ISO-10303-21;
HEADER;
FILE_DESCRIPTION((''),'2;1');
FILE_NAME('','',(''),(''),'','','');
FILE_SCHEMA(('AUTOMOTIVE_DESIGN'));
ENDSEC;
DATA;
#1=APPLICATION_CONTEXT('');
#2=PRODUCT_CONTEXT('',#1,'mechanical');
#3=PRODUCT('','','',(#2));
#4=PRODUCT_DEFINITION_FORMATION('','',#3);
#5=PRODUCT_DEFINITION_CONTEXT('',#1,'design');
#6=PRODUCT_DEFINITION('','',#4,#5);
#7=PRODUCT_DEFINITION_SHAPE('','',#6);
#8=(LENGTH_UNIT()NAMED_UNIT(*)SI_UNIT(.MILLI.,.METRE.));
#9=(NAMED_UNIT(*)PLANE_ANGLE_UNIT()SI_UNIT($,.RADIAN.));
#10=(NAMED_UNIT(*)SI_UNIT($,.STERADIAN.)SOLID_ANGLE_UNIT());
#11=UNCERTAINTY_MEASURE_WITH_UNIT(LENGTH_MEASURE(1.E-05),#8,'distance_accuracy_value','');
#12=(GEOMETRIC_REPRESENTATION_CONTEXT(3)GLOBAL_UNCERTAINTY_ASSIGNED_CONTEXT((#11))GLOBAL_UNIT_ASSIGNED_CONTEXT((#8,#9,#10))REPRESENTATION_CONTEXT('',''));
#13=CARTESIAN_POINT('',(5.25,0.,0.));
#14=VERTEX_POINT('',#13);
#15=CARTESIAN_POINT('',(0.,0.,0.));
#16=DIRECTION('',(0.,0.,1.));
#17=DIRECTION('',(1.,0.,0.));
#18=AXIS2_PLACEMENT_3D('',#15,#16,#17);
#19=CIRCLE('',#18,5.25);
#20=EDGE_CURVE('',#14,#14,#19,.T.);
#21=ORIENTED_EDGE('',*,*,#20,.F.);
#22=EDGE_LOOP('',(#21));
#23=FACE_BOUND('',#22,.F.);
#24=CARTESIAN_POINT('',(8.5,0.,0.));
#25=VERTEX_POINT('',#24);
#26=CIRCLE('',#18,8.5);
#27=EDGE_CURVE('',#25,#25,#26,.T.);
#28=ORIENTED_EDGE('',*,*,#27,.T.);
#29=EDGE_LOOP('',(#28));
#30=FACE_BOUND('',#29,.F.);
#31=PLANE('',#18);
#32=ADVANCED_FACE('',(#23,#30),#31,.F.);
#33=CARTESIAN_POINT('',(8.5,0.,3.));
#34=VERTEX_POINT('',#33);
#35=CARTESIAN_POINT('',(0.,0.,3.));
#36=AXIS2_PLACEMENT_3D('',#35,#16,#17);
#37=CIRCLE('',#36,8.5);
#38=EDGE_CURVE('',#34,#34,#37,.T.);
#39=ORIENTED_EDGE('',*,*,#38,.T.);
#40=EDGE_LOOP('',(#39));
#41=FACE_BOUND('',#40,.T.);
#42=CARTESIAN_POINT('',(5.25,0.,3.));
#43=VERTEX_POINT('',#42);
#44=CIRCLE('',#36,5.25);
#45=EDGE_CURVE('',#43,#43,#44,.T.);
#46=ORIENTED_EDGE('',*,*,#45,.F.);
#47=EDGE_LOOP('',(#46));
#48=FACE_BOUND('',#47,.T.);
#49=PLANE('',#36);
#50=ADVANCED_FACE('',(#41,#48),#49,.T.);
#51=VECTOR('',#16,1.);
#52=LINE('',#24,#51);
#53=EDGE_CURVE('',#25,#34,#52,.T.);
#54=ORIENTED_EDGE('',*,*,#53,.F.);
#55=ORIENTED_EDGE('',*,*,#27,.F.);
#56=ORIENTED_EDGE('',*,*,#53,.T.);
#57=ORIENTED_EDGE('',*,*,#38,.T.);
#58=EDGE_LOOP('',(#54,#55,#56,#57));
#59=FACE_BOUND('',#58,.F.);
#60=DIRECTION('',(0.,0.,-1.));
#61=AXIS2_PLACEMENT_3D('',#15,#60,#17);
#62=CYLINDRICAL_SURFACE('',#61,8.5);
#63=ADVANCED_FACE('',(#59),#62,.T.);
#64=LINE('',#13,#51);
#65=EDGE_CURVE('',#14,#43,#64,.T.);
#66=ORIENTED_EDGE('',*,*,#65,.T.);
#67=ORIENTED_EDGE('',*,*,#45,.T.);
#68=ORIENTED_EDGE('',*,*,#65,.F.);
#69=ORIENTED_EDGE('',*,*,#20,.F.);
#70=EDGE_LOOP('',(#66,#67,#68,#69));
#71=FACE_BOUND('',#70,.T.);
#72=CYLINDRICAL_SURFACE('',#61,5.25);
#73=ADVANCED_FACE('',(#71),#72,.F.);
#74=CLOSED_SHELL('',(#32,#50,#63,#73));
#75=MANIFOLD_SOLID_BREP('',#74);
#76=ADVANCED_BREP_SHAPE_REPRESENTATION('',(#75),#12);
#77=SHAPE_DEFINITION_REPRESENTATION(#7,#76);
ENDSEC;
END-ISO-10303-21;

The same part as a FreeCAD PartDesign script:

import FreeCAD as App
import Part
import Sketcher
from FreeCAD import Vector

doc = App.newDocument("Part")
body = doc.addObject("PartDesign::Body", "Body")

# Sketch on XY plane
sketch1 = body.newObject("Sketcher::SketchObject", "Sketch")
sketch1.AttachmentSupport = (doc.getObject("XY_Plane"), [""])
sketch1.MapMode = "FlatFace"
sketch1.addGeometry(Part.Circle(Vector(0, 0, 0), Vector(0, 0, 1), 8), False)
sketch1.addGeometry(Part.Circle(Vector(0, 0, 0), Vector(0, 0, 1), 5), False)
sketch1.addConstraint(Sketcher.Constraint("Coincident", 0, 3, -1, 1))
sketch1.addConstraint(Sketcher.Constraint("Coincident", 1, 3, -1, 1))
sketch1.addConstraint(Sketcher.Constraint("Diameter", 0, 17.0))
sketch1.addConstraint(Sketcher.Constraint("Diameter", 1, 10.5))
pad1 = body.newObject("PartDesign::Pad", "Pad")
pad1.Profile = sketch1
pad1.Length = 3

doc.recompute()
